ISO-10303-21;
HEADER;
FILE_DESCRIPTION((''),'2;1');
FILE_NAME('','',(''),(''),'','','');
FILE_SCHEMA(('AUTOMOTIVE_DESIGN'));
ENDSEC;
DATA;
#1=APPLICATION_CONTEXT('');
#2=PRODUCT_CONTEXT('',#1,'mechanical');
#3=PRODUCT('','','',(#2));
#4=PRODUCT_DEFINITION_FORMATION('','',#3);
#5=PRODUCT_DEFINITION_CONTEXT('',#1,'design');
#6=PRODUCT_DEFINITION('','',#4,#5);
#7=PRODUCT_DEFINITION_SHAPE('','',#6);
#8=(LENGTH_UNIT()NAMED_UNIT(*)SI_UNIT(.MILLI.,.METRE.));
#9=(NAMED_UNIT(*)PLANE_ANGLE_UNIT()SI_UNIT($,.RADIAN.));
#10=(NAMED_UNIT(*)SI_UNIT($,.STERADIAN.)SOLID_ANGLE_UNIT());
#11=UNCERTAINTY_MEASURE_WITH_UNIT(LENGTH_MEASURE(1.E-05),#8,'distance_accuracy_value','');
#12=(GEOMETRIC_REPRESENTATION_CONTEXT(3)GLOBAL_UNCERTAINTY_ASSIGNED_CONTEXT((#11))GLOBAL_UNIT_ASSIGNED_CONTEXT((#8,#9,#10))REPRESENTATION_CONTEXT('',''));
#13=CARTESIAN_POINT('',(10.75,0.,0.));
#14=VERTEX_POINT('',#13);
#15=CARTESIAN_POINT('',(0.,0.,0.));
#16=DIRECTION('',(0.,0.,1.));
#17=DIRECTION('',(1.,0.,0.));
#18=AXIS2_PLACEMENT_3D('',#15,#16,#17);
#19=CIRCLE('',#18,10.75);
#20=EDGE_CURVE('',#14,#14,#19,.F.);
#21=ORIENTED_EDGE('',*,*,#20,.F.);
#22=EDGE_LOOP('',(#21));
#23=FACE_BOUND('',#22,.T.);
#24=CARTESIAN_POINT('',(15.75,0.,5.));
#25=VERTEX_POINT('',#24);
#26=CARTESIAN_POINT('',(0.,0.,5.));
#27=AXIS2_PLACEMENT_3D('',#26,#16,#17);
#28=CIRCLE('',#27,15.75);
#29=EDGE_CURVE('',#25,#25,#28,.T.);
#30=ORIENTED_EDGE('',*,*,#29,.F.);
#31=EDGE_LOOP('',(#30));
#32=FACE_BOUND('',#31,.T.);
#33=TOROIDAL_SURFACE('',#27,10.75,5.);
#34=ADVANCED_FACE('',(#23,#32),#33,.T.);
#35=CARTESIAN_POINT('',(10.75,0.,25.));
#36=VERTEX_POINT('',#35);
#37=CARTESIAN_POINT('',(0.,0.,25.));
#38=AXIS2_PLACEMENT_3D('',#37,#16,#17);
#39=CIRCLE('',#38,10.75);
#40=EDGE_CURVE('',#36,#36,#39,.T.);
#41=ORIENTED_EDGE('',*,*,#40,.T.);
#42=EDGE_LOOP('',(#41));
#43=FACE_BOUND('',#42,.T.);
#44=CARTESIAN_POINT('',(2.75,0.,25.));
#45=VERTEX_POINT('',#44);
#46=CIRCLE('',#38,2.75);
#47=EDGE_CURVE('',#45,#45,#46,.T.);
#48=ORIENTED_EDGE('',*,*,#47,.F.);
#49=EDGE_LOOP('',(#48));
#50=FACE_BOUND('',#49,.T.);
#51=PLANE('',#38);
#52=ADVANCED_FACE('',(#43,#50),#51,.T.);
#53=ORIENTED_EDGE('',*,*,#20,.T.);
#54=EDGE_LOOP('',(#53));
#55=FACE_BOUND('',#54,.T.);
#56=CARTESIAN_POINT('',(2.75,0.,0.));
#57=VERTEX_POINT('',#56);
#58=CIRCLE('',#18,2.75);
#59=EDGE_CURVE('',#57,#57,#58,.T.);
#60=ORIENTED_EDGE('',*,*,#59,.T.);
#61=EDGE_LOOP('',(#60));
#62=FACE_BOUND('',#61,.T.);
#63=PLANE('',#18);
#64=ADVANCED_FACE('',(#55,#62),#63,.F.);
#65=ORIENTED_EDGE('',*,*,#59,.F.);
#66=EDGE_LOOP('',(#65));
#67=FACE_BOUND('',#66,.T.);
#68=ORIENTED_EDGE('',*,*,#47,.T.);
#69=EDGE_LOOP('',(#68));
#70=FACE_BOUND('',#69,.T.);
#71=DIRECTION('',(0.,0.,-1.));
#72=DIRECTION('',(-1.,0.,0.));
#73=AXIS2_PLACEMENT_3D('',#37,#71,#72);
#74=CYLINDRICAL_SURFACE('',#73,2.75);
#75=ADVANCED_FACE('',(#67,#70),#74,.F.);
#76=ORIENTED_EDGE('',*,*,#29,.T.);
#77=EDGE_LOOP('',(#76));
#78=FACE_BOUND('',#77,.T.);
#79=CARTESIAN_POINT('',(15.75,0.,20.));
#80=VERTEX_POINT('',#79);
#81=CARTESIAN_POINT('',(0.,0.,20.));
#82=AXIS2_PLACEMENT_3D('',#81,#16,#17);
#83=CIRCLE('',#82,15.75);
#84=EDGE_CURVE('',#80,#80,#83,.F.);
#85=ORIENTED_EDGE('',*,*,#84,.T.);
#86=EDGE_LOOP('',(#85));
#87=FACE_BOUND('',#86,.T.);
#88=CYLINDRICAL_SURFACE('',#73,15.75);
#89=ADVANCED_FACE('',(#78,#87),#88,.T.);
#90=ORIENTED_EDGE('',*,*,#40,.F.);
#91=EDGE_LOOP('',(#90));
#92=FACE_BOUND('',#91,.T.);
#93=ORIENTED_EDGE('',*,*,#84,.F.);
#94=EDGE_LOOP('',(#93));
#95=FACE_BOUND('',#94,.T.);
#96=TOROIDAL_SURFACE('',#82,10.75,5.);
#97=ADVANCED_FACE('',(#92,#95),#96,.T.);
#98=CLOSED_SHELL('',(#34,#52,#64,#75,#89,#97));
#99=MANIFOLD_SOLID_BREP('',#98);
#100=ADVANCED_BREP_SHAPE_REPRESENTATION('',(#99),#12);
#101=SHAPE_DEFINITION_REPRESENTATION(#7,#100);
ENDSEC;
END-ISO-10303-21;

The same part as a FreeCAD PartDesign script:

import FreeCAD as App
import Part
import Sketcher
from FreeCAD import Vector
Q = App.Units.Quantity


def edges_at(feature, points):
    """Names of the edges that pass closest to the given points."""
    edges = feature.Shape.Edges
    near = lambda p: min(range(len(edges)), key=lambda i: edges[i].distToShape(Part.Vertex(*p))[0])
    return sorted({f"Edge{near(p) + 1}" for p in points})

doc = App.newDocument("Part")
params = doc.addObject("Spreadsheet::Sheet", "Params")
for row, (alias, value) in enumerate([
    ("sketch1_diameter", "31.5 mm"),
    ("sketch1_diameter2", "5.5 mm"),
    ("pad1_length", "25 mm"),
    ("fillet_radius", "5 mm"),
], start=1):
    params.set(f"A{row}", alias)
    params.set(f"B{row}", "=" + value)
    params.setAlias(f"B{row}", alias)

body = doc.addObject("PartDesign::Body", "Body")

sketch1 = body.newObject("Sketcher::SketchObject", "Sketch")
sketch1.AttachmentSupport = (doc.getObject("XY_Plane"), [""])
sketch1.MapMode = "FlatFace"
sketch1.addGeometry(Part.Circle(Vector(0, 0, 0), Vector(0, 0, 1), 15.8), False)
sketch1.addGeometry(Part.Circle(Vector(0, 0, 0), Vector(0, 0, 1), 2.8), False)
sketch1.addConstraint(Sketcher.Constraint("Coincident", 0, 3, -1, 1))
sketch1.addConstraint(Sketcher.Constraint("Coincident", 1, 3, -1, 1))
sketch1.addConstraint(Sketcher.Constraint("Diameter", 0, Q("31.5 mm")))
sketch1.addConstraint(Sketcher.Constraint("Diameter", 1, Q("5.5 mm")))
sketch1.setExpression("Constraints[2]", "Params.sketch1_diameter")
sketch1.setExpression("Constraints[3]", "Params.sketch1_diameter2")
pad1 = body.newObject("PartDesign::Pad", "Pad")
pad1.Profile = sketch1
pad1.setExpression("Length", "Params.pad1_length")
doc.recompute()

fillet = body.newObject("PartDesign::Fillet", "Fillet")
fillet.Base = (pad1, edges_at(pad1, [(-15.75, 0, 0), (-15.75, 0, 25)]))
fillet.setExpression("Radius", "Params.fillet_radius")

doc.recompute()
